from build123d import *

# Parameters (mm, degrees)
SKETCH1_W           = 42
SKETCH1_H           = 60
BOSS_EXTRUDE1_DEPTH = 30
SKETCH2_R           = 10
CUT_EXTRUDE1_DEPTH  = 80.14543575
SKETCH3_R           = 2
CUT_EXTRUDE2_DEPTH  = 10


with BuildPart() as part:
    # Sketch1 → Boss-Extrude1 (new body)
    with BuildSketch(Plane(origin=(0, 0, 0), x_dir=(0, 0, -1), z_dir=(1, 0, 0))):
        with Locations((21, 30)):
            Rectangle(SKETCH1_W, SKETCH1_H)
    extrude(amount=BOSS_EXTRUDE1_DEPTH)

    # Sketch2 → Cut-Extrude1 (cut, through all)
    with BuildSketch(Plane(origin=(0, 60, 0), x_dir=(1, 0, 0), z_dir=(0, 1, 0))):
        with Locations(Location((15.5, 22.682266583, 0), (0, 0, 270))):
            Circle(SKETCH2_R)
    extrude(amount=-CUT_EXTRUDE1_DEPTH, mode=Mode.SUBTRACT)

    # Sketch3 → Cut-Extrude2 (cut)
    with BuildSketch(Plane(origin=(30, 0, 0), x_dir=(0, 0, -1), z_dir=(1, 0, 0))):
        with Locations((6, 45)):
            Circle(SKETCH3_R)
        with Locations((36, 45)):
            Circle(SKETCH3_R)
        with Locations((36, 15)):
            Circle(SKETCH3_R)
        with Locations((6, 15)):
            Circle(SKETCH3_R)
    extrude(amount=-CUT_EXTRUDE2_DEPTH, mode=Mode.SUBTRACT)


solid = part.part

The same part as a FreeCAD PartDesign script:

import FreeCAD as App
import Part
import Sketcher

V = App.Vector
Q = App.Units.Quantity


def add_polygon(sketch, points):
    """Adds a closed chain of lines whose ends are joined by coincident constraints."""
    first, n = sketch.GeometryCount, len(points)
    for a, b in zip(points, points[1:] + points[:1]):
        sketch.addGeometry(Part.LineSegment(App.Vector(*a, 0), App.Vector(*b, 0)), False)
    for i in range(n):
        sketch.addConstraint(Sketcher.Constraint("Coincident", first + i, 2, first + (i + 1) % n, 1))

doc = App.newDocument("Part")
body = doc.addObject("PartDesign::Body", "Body")

sketch1 = body.newObject("Sketcher::SketchObject", "Sketch")
sketch1.AttachmentSupport = (doc.getObject("YZ_Plane"), [""])
sketch1.MapMode = "FlatFace"
add_polygon(sketch1, [(60, 0), (0, 0), (0, -42), (60, -42)])
sketch1.addConstraint([
    Sketcher.Constraint("Horizontal", 0),
    Sketcher.Constraint("Vertical", 1),
    Sketcher.Constraint("Horizontal", 2),
    Sketcher.Constraint("Vertical", 3),
    Sketcher.Constraint("Coincident", 0, 2, -1, 1),
    Sketcher.Constraint("DistanceX", 0, 2, 0, 1, Q("60 mm")),
    Sketcher.Constraint("DistanceY", 1, 2, 1, 1, Q("42 mm")),
])
pad1 = body.newObject("PartDesign::Pad", "Pad")
pad1.Profile = sketch1
pad1.Length = 30

sketch2 = body.newObject("Sketcher::SketchObject", "Sketch001")
sketch2.AttachmentSupport = (doc.getObject("XZ_Plane"), [""])
sketch2.MapMode = "FlatFace"
sketch2.AttachmentOffset = App.Placement(V(0, 0, -60), App.Rotation())
sketch2.addGeometry(Part.Circle(V(15.5, -22.682267, 0), V(0, 0, 1), 10), False)
sketch2.addConstraint([
    Sketcher.Constraint("Diameter", 0, Q("20 mm")),
    Sketcher.Constraint("DistanceX", -1, 1, 0, 3, Q("15.5 mm")),
    Sketcher.Constraint("DistanceY", 0, 3, -1, 1, Q("22.682267 mm")),
])
pocket1 = body.newObject("PartDesign::Pocket", "Pocket")
pocket1.Profile = sketch2
pocket1.Type = "ThroughAll"
pocket1.Reversed = True

sketch3 = body.newObject("Sketcher::SketchObject", "Sketch002")
sketch3.AttachmentSupport = (doc.getObject("YZ_Plane"), [""])
sketch3.MapMode = "FlatFace"
sketch3.AttachmentOffset = App.Placement(V(0, 0, 30), App.Rotation())
sketch3.addGeometry([
    Part.Circle(V(45, -6, 0), V(0, 0, 1), 2),
    Part.Circle(V(45, -36, 0), V(0, 0, 1), 2),
    Part.Circle(V(15, -36, 0), V(0, 0, 1), 2),
    Part.Circle(V(15, -6, 0), V(0, 0, 1), 2),
], False)
sketch3.addConstraint([
    Sketcher.Constraint("Equal", 0, 1),
    Sketcher.Constraint("Equal", 1, 2),
    Sketcher.Constraint("Equal", 2, 3),
    Sketcher.Constraint("Horizontal", 1, 3, 2, 3),
    Sketcher.Constraint("Horizontal", 0, 3, 3, 3),
    Sketcher.Constraint("Vertical", 0, 3, 1, 3),
    Sketcher.Constraint("Vertical", 2, 3, 3, 3),
    Sketcher.Constraint("Diameter", 0, Q("4 mm")),
    Sketcher.Constraint("DistanceX", -1, 1, 0, 3, Q("45 mm")),
    Sketcher.Constraint("DistanceY", 0, 3, -1, 1, Q("6 mm")),
    Sketcher.Constraint("DistanceY", 1, 3, -1, 1, Q("36 mm")),
    Sketcher.Constraint("DistanceX", -1, 1, 2, 3, Q("15 mm")),
])
pocket2 = body.newObject("PartDesign::Pocket", "Pocket001")
pocket2.Profile = sketch3
pocket2.Length = 10

doc.recompute()
